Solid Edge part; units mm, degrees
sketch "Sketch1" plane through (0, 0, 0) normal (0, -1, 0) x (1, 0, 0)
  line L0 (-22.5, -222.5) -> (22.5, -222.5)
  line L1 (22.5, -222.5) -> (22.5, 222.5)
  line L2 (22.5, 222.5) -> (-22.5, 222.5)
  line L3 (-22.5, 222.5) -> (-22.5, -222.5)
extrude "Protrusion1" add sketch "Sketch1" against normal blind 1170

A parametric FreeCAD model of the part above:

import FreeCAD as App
import Part
import Sketcher

doc = App.newDocument("Part")
params = doc.addObject("Spreadsheet::Sheet", "Params")
for row, (alias, value) in enumerate([
    ("sketch1_width", "45 mm"),
    ("sketch1_height", "445 mm"),
    ("pad1_length", "1170 mm"),
], start=1):
    params.set(f"A{row}", alias)
    params.set(f"B{row}", "=" + value)
    params.setAlias(f"B{row}", alias)

body = doc.addObject("PartDesign::Body", "Body")

sketch1 = body.newObject("Sketcher::SketchObject", "Sketch")
sketch1.AttachmentSupport = (doc.getObject("XZ_Plane"), [""])
sketch1.MapMode = "FlatFace"
sketch1.addGeometry([
    Part.LineSegment(App.Vector(-22, 222, 0), App.Vector(-22, -222, 0)),
    Part.LineSegment(App.Vector(-22, -222, 0), App.Vector(22, -222, 0)),
    Part.LineSegment(App.Vector(22, -222, 0), App.Vector(22, 222, 0)),
    Part.LineSegment(App.Vector(22, 222, 0), App.Vector(-22, 222, 0)),
], False)
sketch1.addConstraint([
    Sketcher.Constraint("Coincident", 0, 2, 1, 1),
    Sketcher.Constraint("Coincident", 1, 2, 2, 1),
    Sketcher.Constraint("Coincident", 2, 2, 3, 1),
    Sketcher.Constraint("Coincident", 3, 2, 0, 1),
    Sketcher.Constraint("Vertical", 0),
    Sketcher.Constraint("Horizontal", 1),
    Sketcher.Constraint("Vertical", 2),
    Sketcher.Constraint("Horizontal", 3),
    Sketcher.Constraint("Symmetric", 0, 2, 2, 2, -1, 1),
    Sketcher.Constraint("DistanceX", 1, 1, 1, 2, 45.0),
    Sketcher.Constraint("DistanceY", 0, 2, 0, 1, 445.0),
])
sketch1.setExpression("Constraints[9]", "Params.sketch1_width")
sketch1.setExpression("Constraints[10]", "Params.sketch1_height")
pad1 = body.newObject("PartDesign::Pad", "Pad")
pad1.Profile = sketch1
pad1.setExpression("Length", "Params.pad1_length")
pad1.Reversed = True

doc.recompute()
